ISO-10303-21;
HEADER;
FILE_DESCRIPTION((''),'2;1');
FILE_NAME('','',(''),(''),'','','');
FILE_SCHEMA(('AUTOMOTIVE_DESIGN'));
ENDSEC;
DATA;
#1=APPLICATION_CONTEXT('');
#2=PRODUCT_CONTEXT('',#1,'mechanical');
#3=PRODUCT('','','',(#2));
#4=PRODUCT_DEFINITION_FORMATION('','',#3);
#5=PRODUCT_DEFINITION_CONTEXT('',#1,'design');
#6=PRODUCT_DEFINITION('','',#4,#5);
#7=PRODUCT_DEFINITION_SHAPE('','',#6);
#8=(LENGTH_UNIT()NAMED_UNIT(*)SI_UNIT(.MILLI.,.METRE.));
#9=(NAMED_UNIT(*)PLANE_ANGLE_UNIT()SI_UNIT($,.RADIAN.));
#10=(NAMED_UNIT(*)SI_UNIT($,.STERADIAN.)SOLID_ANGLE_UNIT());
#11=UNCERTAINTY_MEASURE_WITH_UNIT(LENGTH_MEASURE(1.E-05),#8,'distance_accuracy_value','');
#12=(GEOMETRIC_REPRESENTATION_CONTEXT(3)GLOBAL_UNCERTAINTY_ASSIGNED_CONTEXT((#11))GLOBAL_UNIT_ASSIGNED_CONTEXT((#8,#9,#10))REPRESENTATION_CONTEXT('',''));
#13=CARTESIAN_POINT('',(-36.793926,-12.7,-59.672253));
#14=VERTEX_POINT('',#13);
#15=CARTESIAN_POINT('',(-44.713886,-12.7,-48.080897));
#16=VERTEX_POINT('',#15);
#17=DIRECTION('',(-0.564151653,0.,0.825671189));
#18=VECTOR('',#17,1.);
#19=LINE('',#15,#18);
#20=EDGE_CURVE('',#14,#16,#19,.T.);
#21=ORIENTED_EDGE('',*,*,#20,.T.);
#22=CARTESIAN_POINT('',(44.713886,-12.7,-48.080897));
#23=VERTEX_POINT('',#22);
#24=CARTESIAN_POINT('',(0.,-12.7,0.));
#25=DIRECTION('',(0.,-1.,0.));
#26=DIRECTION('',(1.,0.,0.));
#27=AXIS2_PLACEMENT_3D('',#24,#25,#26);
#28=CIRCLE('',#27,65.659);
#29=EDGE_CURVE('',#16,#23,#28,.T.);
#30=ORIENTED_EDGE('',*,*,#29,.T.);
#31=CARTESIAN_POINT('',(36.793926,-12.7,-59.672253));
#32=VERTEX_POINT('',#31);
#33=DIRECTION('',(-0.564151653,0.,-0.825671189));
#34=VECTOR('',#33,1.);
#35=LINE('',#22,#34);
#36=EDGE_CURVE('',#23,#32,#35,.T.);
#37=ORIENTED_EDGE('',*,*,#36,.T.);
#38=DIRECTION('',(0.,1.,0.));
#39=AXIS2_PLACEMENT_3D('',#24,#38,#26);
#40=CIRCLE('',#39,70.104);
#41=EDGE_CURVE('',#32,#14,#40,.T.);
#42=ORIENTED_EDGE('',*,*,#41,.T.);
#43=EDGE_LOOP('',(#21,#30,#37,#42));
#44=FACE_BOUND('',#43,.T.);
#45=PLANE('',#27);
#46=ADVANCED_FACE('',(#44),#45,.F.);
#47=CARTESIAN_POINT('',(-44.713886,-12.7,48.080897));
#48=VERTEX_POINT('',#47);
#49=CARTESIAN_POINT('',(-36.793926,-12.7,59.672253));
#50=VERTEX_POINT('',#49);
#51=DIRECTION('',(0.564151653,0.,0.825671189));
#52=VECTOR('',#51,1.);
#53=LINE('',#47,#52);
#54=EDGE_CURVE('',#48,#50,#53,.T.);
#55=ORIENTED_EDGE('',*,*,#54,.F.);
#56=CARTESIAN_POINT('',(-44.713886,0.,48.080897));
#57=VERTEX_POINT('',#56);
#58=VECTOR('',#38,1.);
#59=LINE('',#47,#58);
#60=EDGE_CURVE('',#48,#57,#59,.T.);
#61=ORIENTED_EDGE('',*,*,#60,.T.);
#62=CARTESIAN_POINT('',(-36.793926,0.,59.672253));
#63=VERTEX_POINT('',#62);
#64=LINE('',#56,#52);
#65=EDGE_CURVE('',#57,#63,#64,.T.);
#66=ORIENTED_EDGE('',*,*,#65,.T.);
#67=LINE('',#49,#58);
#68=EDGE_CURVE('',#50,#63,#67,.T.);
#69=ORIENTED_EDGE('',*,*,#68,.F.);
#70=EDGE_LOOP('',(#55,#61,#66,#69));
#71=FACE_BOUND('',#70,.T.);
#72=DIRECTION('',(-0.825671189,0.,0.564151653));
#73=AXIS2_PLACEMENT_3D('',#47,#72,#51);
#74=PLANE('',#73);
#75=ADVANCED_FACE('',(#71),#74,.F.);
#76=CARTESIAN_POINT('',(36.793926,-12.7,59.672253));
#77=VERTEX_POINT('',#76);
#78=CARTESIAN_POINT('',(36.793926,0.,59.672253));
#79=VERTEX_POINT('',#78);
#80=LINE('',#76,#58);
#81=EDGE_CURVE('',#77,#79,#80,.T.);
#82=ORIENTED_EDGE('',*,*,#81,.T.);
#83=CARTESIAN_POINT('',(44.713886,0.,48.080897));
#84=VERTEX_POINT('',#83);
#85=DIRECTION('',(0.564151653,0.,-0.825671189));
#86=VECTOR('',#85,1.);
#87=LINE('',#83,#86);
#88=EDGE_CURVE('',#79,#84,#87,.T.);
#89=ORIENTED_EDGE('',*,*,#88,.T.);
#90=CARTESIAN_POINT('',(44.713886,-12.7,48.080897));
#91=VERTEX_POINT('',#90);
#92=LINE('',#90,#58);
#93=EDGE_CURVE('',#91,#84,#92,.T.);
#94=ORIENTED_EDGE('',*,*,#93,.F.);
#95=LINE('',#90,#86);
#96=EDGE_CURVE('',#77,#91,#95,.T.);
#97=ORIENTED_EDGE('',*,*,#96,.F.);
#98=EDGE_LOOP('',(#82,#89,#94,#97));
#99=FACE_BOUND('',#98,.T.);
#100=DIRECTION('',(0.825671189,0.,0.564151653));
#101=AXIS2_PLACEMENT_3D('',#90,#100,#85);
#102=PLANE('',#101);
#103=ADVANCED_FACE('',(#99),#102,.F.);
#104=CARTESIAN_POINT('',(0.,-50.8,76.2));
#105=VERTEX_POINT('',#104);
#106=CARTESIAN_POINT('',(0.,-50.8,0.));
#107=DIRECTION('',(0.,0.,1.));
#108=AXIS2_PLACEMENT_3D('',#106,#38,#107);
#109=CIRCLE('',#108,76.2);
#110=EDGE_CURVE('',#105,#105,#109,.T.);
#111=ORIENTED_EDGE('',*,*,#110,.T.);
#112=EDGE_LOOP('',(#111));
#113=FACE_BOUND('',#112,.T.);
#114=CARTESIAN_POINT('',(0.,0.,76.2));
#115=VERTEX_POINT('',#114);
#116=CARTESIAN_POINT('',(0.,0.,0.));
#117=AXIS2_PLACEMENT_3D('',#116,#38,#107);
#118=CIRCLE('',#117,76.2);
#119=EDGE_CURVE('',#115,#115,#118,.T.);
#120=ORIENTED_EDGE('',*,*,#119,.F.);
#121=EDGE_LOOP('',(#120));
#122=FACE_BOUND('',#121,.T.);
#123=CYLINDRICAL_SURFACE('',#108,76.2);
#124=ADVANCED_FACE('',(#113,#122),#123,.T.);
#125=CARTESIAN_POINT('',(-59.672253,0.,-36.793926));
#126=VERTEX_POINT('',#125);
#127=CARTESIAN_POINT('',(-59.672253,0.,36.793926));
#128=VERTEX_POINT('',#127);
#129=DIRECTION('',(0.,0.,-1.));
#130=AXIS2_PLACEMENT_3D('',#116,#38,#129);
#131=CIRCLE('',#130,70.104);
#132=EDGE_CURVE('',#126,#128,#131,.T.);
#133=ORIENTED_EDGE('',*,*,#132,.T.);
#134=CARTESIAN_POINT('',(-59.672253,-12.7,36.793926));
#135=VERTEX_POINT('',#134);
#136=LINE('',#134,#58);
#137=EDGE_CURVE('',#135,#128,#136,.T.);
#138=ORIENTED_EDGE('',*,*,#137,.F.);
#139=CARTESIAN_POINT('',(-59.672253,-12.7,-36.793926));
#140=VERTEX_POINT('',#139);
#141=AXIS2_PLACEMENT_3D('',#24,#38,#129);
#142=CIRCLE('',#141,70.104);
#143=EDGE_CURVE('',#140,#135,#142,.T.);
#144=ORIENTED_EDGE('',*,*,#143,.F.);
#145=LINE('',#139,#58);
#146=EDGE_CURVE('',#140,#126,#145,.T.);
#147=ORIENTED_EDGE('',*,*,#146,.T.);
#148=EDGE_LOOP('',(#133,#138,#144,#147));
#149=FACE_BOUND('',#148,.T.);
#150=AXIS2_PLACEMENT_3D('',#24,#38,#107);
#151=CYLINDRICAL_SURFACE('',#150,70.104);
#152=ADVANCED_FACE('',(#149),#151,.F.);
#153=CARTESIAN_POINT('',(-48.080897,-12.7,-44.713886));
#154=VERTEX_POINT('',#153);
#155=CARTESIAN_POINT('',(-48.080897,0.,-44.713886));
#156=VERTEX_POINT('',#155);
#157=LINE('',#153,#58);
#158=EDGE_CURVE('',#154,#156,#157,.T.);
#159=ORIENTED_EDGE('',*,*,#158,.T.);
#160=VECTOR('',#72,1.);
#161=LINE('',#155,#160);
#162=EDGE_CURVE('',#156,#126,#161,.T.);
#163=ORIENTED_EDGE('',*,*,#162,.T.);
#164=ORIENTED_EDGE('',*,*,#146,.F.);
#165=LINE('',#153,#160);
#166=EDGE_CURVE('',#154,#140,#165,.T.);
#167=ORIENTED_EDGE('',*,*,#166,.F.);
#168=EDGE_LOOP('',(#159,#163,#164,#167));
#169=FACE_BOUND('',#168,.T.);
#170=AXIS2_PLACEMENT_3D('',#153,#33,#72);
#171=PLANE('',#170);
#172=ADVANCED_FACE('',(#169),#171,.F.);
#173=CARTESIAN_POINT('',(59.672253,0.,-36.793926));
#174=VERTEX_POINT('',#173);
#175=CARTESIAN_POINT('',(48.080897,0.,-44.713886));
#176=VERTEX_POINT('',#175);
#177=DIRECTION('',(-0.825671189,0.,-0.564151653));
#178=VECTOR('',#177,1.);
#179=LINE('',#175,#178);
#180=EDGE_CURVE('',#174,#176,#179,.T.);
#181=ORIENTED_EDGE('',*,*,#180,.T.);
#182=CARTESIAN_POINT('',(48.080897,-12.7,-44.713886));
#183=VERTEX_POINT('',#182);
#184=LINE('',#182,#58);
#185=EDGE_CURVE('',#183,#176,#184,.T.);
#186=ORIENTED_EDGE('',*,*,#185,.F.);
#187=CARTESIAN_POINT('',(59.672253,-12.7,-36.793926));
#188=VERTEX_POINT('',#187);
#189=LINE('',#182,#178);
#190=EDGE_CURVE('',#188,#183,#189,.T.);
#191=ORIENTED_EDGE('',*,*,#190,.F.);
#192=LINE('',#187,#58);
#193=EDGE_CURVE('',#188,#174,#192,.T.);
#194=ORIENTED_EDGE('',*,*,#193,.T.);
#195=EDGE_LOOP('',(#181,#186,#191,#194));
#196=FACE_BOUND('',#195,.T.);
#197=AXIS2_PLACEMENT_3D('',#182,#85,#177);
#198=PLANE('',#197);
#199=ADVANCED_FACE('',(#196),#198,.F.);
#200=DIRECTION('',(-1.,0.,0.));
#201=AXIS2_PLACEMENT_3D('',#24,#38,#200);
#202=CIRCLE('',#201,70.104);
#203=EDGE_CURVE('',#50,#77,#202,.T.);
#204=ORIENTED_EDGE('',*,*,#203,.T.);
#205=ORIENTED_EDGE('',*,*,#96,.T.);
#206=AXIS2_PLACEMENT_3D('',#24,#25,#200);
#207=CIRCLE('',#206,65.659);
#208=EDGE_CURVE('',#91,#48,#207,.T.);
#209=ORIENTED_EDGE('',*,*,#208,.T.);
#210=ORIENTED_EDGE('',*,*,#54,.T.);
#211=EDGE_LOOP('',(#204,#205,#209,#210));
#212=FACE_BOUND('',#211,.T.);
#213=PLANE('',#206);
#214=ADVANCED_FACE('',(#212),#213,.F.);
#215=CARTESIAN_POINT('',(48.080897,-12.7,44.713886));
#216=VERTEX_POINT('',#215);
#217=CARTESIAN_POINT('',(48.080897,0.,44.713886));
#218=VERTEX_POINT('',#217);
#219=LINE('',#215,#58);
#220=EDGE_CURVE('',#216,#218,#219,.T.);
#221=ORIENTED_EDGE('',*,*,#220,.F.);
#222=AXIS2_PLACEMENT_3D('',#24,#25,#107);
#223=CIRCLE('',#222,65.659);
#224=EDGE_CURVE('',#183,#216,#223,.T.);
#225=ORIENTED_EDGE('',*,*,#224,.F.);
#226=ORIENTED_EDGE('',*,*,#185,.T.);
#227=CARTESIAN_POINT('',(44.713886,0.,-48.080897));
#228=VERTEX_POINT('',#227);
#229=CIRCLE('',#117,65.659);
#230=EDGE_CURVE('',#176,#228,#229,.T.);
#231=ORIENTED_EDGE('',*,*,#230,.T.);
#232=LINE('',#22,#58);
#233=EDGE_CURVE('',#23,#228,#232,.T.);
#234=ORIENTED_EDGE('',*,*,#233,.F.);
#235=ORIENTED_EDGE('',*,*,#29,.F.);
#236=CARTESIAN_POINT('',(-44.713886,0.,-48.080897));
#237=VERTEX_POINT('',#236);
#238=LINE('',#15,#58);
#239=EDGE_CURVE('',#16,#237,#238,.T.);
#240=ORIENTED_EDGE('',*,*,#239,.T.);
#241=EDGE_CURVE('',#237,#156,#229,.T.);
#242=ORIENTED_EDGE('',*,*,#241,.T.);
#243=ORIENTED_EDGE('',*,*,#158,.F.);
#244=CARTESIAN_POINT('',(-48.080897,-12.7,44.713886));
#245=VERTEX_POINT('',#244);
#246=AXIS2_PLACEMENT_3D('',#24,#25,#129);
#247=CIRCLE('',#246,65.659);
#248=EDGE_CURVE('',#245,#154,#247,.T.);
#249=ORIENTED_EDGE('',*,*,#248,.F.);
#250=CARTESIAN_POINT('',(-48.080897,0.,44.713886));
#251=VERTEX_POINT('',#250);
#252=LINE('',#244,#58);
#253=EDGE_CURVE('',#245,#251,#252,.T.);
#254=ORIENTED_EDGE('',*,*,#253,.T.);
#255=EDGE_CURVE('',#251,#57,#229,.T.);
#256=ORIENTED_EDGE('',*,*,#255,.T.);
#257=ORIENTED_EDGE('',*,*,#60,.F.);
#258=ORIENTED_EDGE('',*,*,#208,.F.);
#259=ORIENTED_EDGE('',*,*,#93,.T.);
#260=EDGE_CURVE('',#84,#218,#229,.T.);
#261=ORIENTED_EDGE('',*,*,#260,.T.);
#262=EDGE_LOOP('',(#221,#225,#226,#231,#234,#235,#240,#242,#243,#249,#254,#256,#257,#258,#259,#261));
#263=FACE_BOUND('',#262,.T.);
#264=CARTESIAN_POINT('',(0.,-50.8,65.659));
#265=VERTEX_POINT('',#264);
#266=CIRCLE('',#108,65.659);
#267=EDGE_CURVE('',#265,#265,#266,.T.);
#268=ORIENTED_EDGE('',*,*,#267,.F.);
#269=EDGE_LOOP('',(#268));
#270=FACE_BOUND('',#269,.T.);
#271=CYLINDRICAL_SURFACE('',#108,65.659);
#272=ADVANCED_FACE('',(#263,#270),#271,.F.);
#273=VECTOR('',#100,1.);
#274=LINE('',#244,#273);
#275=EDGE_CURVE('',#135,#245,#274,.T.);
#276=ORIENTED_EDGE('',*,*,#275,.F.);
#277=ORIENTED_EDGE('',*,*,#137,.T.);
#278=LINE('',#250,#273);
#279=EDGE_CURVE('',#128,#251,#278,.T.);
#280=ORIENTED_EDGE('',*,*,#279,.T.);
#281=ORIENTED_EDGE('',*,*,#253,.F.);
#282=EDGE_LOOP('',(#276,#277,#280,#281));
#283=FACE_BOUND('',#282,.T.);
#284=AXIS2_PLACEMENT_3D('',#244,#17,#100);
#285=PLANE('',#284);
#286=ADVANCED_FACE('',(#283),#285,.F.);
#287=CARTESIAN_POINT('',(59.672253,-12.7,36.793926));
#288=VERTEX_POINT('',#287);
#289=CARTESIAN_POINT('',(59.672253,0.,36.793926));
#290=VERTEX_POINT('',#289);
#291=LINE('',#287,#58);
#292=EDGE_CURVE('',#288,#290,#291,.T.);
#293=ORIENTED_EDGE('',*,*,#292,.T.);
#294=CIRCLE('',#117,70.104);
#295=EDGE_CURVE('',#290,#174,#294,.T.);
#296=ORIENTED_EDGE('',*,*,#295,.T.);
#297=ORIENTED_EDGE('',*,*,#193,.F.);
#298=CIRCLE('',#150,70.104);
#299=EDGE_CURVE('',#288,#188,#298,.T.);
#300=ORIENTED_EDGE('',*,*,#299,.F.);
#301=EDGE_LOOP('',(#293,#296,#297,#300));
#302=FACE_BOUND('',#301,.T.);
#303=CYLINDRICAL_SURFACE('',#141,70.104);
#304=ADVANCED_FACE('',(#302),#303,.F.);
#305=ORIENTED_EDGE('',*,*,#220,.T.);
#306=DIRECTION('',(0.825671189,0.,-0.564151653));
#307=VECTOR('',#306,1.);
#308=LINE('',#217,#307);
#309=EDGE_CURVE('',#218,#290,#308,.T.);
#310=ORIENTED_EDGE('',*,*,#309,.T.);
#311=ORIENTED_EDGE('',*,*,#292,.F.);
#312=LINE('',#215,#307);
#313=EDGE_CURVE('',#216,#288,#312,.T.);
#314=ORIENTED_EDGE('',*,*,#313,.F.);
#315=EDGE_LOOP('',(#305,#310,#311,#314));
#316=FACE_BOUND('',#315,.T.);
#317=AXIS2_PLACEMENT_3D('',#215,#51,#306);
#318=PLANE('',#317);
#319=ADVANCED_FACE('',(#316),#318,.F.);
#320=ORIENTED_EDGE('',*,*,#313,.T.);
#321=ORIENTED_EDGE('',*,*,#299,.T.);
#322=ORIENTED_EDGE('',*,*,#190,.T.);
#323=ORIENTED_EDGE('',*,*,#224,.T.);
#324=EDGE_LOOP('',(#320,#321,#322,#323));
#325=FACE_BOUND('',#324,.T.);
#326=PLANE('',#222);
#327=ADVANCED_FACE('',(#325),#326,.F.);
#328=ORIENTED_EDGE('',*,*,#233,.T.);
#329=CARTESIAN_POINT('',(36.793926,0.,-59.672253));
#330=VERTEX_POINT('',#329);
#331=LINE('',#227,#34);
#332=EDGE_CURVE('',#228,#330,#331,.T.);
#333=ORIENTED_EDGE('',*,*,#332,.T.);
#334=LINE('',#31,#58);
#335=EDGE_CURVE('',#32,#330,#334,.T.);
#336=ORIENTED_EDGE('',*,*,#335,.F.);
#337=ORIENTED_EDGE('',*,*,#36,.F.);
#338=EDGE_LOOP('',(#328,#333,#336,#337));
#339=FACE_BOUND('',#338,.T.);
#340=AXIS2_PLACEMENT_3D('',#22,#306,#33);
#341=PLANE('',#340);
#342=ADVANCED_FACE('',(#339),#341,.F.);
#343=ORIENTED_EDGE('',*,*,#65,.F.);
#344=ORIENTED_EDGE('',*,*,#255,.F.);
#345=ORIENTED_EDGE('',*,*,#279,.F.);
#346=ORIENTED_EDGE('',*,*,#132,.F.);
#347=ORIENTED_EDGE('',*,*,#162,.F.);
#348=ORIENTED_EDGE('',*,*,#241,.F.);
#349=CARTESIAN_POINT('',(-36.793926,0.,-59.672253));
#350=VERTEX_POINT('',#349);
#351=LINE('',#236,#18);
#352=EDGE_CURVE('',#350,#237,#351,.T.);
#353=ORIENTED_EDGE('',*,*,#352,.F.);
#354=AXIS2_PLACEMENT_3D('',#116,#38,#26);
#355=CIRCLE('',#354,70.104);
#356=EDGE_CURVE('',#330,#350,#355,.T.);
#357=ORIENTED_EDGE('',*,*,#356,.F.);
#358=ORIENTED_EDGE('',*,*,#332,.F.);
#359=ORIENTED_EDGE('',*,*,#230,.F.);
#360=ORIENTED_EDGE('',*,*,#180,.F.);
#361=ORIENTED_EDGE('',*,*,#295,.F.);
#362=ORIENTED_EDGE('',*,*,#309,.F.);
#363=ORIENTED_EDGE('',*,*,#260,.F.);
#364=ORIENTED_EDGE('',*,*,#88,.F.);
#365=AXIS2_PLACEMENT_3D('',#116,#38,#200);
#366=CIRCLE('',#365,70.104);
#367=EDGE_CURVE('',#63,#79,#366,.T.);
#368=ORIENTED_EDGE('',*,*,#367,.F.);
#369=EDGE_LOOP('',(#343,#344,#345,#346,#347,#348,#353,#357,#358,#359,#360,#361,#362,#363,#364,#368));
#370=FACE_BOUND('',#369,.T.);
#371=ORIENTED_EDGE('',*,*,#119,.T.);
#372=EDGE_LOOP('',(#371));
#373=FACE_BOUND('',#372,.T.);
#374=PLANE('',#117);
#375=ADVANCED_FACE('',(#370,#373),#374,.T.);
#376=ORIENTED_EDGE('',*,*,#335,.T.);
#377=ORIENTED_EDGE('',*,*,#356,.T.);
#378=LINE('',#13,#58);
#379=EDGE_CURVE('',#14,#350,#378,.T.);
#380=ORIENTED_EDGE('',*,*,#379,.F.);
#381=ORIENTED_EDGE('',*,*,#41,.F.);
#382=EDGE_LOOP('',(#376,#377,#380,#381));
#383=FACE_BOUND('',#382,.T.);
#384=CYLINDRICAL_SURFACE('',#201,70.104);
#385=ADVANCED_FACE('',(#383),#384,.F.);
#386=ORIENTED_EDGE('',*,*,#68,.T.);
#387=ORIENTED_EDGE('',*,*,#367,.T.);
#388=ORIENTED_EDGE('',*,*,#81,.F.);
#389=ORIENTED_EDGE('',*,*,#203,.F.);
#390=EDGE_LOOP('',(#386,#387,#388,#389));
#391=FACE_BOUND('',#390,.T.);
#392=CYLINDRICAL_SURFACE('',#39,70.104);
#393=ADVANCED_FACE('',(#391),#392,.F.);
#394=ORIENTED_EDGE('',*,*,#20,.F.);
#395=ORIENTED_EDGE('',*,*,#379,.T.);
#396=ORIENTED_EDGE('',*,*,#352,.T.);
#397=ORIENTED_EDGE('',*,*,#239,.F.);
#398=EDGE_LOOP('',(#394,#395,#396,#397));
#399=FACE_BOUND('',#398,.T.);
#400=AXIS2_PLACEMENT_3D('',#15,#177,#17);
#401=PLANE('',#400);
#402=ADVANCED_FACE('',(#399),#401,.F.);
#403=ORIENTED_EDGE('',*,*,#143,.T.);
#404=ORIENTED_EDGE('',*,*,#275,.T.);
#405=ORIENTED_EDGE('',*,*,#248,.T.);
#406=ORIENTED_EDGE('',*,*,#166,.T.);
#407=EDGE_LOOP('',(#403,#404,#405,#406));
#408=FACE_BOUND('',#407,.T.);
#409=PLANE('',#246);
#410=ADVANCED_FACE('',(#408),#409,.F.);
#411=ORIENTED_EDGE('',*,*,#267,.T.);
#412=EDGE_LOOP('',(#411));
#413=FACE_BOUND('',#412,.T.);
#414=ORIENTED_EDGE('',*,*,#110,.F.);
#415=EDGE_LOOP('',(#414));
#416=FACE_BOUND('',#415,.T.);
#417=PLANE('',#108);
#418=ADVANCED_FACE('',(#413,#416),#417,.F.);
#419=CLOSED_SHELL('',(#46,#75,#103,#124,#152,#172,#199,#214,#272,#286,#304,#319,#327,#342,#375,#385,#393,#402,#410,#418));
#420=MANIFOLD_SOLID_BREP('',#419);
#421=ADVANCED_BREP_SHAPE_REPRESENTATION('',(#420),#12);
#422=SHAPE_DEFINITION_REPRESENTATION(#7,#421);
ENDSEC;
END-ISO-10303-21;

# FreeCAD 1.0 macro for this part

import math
import FreeCAD as App
import Part
import Sketcher
Q = App.Units.Quantity

doc = App.newDocument("Part")
params = doc.addObject("Spreadsheet::Sheet", "Params")
for row, (alias, value) in enumerate([
    ("sketch1_diameter", "6 in"),
    ("sketch1_diameter2", "5.17 in"),
    ("pad1_length", "2 in"),
    ("sketch2_radius", "2.76 in"),
    ("sketch2_radius2", "2.585 in"),
    ("pocket1_length", "0.5 in"),
], start=1):
    params.set(f"A{row}", alias)
    params.set(f"B{row}", "=" + value)
    params.setAlias(f"B{row}", alias)

body = doc.addObject("PartDesign::Body", "Body")

# Sketch on XZ plane
sketch1 = body.newObject("Sketcher::SketchObject", "Sketch")
sketch1.AttachmentSupport = (doc.getObject("XZ_Plane"), [""])
sketch1.MapMode = "FlatFace"
sketch1.addGeometry(Part.Circle(App.Vector(0, 0, 0), App.Vector(0, 0, 1), 76), False)
sketch1.addGeometry(Part.Circle(App.Vector(0, 0, 0), App.Vector(0, 0, 1), 66), False)
sketch1.addConstraint(Sketcher.Constraint("Coincident", 0, 3, -1, 1))
sketch1.addConstraint(Sketcher.Constraint("Coincident", 1, 3, -1, 1))
sketch1.addConstraint(Sketcher.Constraint("Diameter", 0, Q("6 in")))
sketch1.addConstraint(Sketcher.Constraint("Diameter", 1, Q("5.17 in")))
sketch1.setExpression("Constraints[2]", "Params.sketch1_diameter")
sketch1.setExpression("Constraints[3]", "Params.sketch1_diameter2")
pad1 = body.newObject("PartDesign::Pad", "Pad")
pad1.Profile = sketch1
pad1.setExpression("Length", "Params.pad1_length")

# Sketch on XZ plane
sketch2 = body.newObject("Sketcher::SketchObject", "Sketch001")
sketch2.AttachmentSupport = (doc.getObject("XZ_Plane"), [""])
sketch2.MapMode = "FlatFace"
sketch2.addGeometry(Part.LineSegment(App.Vector(-60, 37, 0), App.Vector(-48, 45, 0)), False)
sketch2.addGeometry(Part.ArcOfCircle(Part.Circle(App.Vector(0, 0, 0), App.Vector(0, 0, 1), 66), math.radians(137), math.radians(223)), False)
sketch2.addGeometry(Part.LineSegment(App.Vector(-48, -45, 0), App.Vector(-60, -37, 0)), False)
sketch2.addGeometry(Part.ArcOfCircle(Part.Circle(App.Vector(0, 0, 0), App.Vector(0, 0, 1), 70), math.radians(148), math.radians(212)), False)
sketch2.addConstraint(Sketcher.Constraint("Coincident", 0, 2, 1, 1))
sketch2.addConstraint(Sketcher.Constraint("Coincident", 1, 2, 2, 1))
sketch2.addConstraint(Sketcher.Constraint("Coincident", 2, 2, 3, 2))
sketch2.addConstraint(Sketcher.Constraint("Coincident", 3, 1, 0, 1))
sketch2.addConstraint(Sketcher.Constraint("Coincident", 1, 3, -1, 1))
sketch2.addConstraint(Sketcher.Constraint("Coincident", 3, 3, -1, 1))
sketch2.addConstraint(Sketcher.Constraint("Vertical", 0, 2, 1, 2))
sketch2.addConstraint(Sketcher.Constraint("Vertical", 2, 2, 3, 1))
sketch2.addConstraint(Sketcher.Constraint("Radius", 3, Q("2.76 in")))
sketch2.addConstraint(Sketcher.Constraint("Radius", 1, Q("2.585 in")))
sketch2.addConstraint(Sketcher.Constraint("DistanceY", 1, 2, 2, 2, Q("7.91996 mm")))
sketch2.addConstraint(Sketcher.Constraint("Distance", 0, Q("14.038707 mm")))
sketch2.setExpression("Constraints[8]", "Params.sketch2_radius")
sketch2.setExpression("Constraints[9]", "Params.sketch2_radius2")
pocket1 = body.newObject("PartDesign::Pocket", "Pocket")
pocket1.Profile = sketch2
pocket1.setExpression("Length", "Params.pocket1_length")
pocket1.Reversed = True
doc.recompute()

polarpattern = body.newObject("PartDesign::PolarPattern", "PolarPattern")
polarpattern.Originals = [pocket1]
polarpattern.Axis = (doc.getObject("Y_Axis"), [""])
polarpattern.Angle = 360
polarpattern.Occurrences = 4
body.Tip = polarpattern

doc.recompute()
